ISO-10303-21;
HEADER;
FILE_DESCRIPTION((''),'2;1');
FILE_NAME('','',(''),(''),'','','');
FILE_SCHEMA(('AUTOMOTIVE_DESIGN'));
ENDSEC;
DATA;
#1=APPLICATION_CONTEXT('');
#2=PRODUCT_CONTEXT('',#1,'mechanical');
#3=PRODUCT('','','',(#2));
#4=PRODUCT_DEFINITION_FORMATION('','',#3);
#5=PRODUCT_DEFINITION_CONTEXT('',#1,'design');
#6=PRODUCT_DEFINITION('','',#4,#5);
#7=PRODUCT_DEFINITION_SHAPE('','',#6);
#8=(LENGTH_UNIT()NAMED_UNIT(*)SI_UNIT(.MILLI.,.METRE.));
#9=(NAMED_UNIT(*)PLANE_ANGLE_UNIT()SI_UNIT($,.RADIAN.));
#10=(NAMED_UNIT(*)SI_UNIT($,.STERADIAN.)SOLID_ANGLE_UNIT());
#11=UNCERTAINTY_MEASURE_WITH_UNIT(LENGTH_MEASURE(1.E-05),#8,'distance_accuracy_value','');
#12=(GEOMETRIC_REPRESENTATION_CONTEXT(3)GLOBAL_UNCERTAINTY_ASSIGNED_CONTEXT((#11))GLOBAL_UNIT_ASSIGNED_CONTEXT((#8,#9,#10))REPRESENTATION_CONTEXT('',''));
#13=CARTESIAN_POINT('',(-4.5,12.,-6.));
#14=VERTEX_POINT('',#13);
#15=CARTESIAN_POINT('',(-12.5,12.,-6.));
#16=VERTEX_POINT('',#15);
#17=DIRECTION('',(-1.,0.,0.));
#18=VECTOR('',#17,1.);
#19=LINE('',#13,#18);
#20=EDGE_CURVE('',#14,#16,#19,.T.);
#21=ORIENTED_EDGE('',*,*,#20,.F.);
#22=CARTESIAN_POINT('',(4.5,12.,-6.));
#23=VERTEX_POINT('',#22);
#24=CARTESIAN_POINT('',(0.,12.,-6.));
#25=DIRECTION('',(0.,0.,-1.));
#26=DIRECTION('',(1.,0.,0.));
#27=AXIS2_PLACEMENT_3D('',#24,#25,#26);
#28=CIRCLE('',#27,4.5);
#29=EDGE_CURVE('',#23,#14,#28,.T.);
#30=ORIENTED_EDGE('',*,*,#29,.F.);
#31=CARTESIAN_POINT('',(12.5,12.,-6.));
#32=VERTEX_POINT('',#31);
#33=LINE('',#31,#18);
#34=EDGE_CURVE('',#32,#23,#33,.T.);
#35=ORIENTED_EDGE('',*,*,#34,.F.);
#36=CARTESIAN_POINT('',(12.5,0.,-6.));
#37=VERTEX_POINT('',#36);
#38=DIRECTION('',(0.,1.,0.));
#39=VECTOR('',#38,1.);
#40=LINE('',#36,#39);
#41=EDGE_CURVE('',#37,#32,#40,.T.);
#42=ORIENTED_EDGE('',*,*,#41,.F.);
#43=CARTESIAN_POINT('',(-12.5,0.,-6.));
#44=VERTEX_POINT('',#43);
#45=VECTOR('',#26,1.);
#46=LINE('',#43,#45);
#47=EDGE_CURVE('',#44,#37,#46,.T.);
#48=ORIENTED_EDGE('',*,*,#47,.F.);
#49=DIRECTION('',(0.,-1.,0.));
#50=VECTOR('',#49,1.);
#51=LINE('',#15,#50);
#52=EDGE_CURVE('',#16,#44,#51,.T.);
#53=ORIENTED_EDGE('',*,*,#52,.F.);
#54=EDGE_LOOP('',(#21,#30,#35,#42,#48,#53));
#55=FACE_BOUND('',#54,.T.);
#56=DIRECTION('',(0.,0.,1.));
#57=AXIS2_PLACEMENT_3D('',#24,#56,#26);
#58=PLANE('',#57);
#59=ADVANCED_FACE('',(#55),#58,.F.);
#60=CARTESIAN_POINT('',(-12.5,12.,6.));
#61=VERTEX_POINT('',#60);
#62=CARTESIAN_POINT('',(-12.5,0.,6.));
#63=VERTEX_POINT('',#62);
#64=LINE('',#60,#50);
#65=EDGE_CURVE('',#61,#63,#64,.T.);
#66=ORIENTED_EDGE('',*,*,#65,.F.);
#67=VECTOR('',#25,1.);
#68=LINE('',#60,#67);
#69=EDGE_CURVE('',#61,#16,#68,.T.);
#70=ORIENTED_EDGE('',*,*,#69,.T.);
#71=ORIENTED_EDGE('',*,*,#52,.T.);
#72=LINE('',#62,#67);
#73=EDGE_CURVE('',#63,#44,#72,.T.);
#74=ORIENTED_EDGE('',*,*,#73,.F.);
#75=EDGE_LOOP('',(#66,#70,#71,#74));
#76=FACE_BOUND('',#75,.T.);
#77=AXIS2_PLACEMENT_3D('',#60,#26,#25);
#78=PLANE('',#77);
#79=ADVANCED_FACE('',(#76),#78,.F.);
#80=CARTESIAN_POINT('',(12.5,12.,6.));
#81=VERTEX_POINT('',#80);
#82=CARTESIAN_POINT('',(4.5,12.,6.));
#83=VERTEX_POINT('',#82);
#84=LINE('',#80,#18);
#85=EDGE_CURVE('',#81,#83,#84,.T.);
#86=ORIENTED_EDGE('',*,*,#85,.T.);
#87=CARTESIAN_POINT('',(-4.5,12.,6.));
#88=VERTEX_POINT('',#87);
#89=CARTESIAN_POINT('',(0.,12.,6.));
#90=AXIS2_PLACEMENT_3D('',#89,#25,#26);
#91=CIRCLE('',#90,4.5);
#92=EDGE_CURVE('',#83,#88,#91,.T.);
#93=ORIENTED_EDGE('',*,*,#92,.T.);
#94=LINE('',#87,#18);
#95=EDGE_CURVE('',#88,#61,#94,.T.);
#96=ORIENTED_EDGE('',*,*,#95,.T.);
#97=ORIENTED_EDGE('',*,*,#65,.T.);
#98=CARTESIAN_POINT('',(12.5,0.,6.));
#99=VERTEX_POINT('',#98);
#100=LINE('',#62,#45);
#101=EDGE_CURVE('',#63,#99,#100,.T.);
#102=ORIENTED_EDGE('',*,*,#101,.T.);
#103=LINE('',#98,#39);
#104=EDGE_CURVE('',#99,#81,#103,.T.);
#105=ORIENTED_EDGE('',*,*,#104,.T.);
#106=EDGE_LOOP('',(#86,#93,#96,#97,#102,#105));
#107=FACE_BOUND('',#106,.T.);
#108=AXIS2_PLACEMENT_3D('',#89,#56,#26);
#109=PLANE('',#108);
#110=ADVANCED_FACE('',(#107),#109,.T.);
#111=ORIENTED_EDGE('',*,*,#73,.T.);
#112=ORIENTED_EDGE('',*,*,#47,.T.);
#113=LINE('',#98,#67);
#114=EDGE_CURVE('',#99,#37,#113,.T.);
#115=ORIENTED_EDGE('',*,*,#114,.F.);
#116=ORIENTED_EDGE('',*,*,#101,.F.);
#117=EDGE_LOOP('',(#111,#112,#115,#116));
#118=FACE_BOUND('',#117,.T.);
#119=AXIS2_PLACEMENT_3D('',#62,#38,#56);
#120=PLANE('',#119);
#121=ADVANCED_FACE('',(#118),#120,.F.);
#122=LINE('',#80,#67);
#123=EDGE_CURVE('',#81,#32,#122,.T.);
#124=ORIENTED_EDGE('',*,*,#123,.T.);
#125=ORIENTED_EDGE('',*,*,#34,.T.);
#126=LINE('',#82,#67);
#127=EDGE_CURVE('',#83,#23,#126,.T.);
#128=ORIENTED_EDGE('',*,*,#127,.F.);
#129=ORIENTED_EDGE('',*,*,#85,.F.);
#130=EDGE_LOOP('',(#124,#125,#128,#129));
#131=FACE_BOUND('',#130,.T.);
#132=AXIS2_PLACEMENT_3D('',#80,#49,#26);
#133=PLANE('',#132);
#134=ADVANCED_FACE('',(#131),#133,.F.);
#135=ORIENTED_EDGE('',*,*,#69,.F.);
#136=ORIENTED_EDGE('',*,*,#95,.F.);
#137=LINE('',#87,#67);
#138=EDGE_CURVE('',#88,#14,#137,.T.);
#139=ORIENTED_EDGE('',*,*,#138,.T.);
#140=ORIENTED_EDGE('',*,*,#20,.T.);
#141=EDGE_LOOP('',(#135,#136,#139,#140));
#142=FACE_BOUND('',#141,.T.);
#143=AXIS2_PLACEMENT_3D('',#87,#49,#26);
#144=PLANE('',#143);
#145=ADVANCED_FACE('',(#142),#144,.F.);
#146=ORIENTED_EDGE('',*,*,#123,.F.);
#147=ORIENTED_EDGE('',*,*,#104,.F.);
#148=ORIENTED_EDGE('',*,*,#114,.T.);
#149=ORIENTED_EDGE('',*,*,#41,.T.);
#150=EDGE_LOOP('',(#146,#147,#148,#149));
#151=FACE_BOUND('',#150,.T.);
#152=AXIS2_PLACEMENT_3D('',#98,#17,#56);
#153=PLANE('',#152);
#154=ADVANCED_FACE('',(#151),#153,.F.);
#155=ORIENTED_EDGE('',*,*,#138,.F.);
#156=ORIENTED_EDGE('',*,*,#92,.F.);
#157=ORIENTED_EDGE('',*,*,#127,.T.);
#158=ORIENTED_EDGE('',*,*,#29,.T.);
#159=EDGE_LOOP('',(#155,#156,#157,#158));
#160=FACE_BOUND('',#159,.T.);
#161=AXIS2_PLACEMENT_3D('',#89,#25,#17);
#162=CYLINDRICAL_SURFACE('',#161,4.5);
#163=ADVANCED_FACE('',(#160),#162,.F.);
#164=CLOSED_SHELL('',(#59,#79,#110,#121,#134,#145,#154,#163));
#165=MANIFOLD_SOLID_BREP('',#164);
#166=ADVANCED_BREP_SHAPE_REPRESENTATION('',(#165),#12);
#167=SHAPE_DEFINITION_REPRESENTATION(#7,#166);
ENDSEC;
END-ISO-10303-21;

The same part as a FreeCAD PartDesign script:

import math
import FreeCAD as App
import Part
import Sketcher
from FreeCAD import Vector
Q = App.Units.Quantity

doc = App.newDocument("Part")
body = doc.addObject("PartDesign::Body", "Body")

# Sketch on XY plane
sketch1 = body.newObject("Sketcher::SketchObject", "Sketch")
sketch1.AttachmentSupport = (doc.getObject("XY_Plane"), [""])
sketch1.MapMode = "FlatFace"
sketch1.addGeometry(Part.LineSegment(Vector(-12.5, 0, 0), Vector(12.5, 0, 0)), False)
sketch1.addGeometry(Part.LineSegment(Vector(12.5, 0, 0), Vector(12.5, 12, 0)), False)
sketch1.addGeometry(Part.LineSegment(Vector(12.5, 12, 0), Vector(4.5, 12, 0)), False)
sketch1.addGeometry(Part.ArcOfCircle(Part.Circle(Vector(0, 12, 0), Vector(0, 0, 1), 4.5), math.radians(180), math.radians(360)), False)
sketch1.addGeometry(Part.LineSegment(Vector(-4.5, 12, 0), Vector(-12.5, 12, 0)), False)
sketch1.addGeometry(Part.LineSegment(Vector(-12.5, 12, 0), Vector(-12.5, 0, 0)), False)
sketch1.addConstraint(Sketcher.Constraint("Coincident", 0, 2, 1, 1))
sketch1.addConstraint(Sketcher.Constraint("Coincident", 1, 2, 2, 1))
sketch1.addConstraint(Sketcher.Constraint("Coincident", 2, 2, 3, 2))
sketch1.addConstraint(Sketcher.Constraint("Coincident", 3, 1, 4, 1))
sketch1.addConstraint(Sketcher.Constraint("Coincident", 4, 2, 5, 1))
sketch1.addConstraint(Sketcher.Constraint("Coincident", 5, 2, 0, 1))
sketch1.addConstraint(Sketcher.Constraint("Horizontal", 0))
sketch1.addConstraint(Sketcher.Constraint("Vertical", 1))
sketch1.addConstraint(Sketcher.Constraint("Horizontal", 2))
sketch1.addConstraint(Sketcher.Constraint("Horizontal", 4))
sketch1.addConstraint(Sketcher.Constraint("Vertical", 5))
sketch1.addConstraint(Sketcher.Constraint("Symmetric", 0, 2, 5, 2, -1, 1))
sketch1.addConstraint(Sketcher.Constraint("Symmetric", 2, 2, 3, 1, -2))
sketch1.addConstraint(Sketcher.Constraint("Horizontal", 3, 3, 1, 2))
sketch1.addConstraint(Sketcher.Constraint("Radius", 3, Q("4.5 mm")))
sketch1.addConstraint(Sketcher.Constraint("DistanceX", 0, 1, 0, 2, Q("25 mm")))
sketch1.addConstraint(Sketcher.Constraint("DistanceY", 1, 1, 1, 2, Q("12 mm")))
pad1 = body.newObject("PartDesign::Pad", "Pad")
pad1.Profile = sketch1
pad1.Length = 12
pad1.Midplane = True

doc.recompute()
